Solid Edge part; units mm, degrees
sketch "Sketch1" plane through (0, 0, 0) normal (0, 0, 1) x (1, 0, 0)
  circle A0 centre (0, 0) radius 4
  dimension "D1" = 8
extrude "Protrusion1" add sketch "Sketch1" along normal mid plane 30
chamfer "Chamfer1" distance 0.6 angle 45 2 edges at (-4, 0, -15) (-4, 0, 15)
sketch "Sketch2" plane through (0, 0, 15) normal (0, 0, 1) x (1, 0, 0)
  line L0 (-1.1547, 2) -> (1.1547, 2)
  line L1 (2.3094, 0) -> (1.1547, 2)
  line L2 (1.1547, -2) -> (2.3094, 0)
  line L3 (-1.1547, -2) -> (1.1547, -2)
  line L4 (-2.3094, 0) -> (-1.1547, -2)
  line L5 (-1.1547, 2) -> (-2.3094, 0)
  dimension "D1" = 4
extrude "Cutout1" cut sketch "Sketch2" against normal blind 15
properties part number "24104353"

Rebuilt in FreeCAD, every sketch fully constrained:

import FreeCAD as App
import Part
import Sketcher
from FreeCAD import Vector
Q = App.Units.Quantity


def edges_at(feature, points):
    """Names of the edges that pass closest to the given points."""
    edges = feature.Shape.Edges
    near = lambda p: min(range(len(edges)), key=lambda i: edges[i].distToShape(Part.Vertex(*p))[0])
    return sorted({f"Edge{near(p) + 1}" for p in points})

doc = App.newDocument("Part")
body = doc.addObject("PartDesign::Body", "Body")

sketch1 = body.newObject("Sketcher::SketchObject", "Sketch")
sketch1.AttachmentSupport = (doc.getObject("XY_Plane"), [""])
sketch1.MapMode = "FlatFace"
sketch1.addGeometry(Part.Circle(Vector(0, 0, 0), Vector(0, 0, 1), 4), False)
sketch1.addConstraint([
    Sketcher.Constraint("Coincident", 0, 3, -1, 1),
    Sketcher.Constraint("Diameter", 0, 8.0),
])
pad1 = body.newObject("PartDesign::Pad", "Pad")
pad1.Profile = sketch1
pad1.Length = 30
pad1.Midplane = True
doc.recompute()

chamfer = body.newObject("PartDesign::Chamfer", "Chamfer")
chamfer.Base = (pad1, edges_at(pad1, [(-4, 0, -15), (-4, 0, 15)]))
chamfer.Size = 0.6

sketch2 = body.newObject("Sketcher::SketchObject", "Sketch001")
sketch2.AttachmentSupport = (doc.getObject("XY_Plane"), [""])
sketch2.MapMode = "FlatFace"
sketch2.AttachmentOffset = App.Placement(Vector(0, 0, 15), App.Rotation())
sketch2.addGeometry([
    Part.LineSegment(Vector(1.2, 2, 0), Vector(-1.2, 2, 0)),
    Part.LineSegment(Vector(-1.2, 2, 0), Vector(-2.3, 0, 0)),
    Part.LineSegment(Vector(-2.3, 0, 0), Vector(-1.2, -2, 0)),
    Part.LineSegment(Vector(-1.2, -2, 0), Vector(1.2, -2, 0)),
    Part.LineSegment(Vector(1.2, -2, 0), Vector(2.3, 0, 0)),
    Part.LineSegment(Vector(2.3, 0, 0), Vector(1.2, 2, 0)),
], False)
sketch2.addConstraint([
    Sketcher.Constraint("Coincident", 0, 2, 1, 1),
    Sketcher.Constraint("Coincident", 1, 2, 2, 1),
    Sketcher.Constraint("Coincident", 2, 2, 3, 1),
    Sketcher.Constraint("Coincident", 3, 2, 4, 1),
    Sketcher.Constraint("Coincident", 4, 2, 5, 1),
    Sketcher.Constraint("Coincident", 5, 2, 0, 1),
    Sketcher.Constraint("Horizontal", 0),
    Sketcher.Constraint("Horizontal", 3),
    Sketcher.Constraint("Symmetric", 0, 2, 3, 2, -1, 1),
    Sketcher.Constraint("Symmetric", 1, 2, 4, 2, -1, 1),
    Sketcher.Constraint("PointOnObject", 1, 2, -1),
    Sketcher.Constraint("Parallel", 2, 5),
    Sketcher.Constraint("Vertical", 0, 2, 2, 2),
    Sketcher.Constraint("Angle", 1, Q("-120 deg")),
    Sketcher.Constraint("DistanceY", -1, 1, 0, 2, 2.0),
    Sketcher.Constraint("DistanceX", 0, 2, 0, 1, 2.3094),
])
pocket1 = body.newObject("PartDesign::Pocket", "Pocket")
pocket1.Profile = sketch2
pocket1.Length = 15

doc.recompute()
